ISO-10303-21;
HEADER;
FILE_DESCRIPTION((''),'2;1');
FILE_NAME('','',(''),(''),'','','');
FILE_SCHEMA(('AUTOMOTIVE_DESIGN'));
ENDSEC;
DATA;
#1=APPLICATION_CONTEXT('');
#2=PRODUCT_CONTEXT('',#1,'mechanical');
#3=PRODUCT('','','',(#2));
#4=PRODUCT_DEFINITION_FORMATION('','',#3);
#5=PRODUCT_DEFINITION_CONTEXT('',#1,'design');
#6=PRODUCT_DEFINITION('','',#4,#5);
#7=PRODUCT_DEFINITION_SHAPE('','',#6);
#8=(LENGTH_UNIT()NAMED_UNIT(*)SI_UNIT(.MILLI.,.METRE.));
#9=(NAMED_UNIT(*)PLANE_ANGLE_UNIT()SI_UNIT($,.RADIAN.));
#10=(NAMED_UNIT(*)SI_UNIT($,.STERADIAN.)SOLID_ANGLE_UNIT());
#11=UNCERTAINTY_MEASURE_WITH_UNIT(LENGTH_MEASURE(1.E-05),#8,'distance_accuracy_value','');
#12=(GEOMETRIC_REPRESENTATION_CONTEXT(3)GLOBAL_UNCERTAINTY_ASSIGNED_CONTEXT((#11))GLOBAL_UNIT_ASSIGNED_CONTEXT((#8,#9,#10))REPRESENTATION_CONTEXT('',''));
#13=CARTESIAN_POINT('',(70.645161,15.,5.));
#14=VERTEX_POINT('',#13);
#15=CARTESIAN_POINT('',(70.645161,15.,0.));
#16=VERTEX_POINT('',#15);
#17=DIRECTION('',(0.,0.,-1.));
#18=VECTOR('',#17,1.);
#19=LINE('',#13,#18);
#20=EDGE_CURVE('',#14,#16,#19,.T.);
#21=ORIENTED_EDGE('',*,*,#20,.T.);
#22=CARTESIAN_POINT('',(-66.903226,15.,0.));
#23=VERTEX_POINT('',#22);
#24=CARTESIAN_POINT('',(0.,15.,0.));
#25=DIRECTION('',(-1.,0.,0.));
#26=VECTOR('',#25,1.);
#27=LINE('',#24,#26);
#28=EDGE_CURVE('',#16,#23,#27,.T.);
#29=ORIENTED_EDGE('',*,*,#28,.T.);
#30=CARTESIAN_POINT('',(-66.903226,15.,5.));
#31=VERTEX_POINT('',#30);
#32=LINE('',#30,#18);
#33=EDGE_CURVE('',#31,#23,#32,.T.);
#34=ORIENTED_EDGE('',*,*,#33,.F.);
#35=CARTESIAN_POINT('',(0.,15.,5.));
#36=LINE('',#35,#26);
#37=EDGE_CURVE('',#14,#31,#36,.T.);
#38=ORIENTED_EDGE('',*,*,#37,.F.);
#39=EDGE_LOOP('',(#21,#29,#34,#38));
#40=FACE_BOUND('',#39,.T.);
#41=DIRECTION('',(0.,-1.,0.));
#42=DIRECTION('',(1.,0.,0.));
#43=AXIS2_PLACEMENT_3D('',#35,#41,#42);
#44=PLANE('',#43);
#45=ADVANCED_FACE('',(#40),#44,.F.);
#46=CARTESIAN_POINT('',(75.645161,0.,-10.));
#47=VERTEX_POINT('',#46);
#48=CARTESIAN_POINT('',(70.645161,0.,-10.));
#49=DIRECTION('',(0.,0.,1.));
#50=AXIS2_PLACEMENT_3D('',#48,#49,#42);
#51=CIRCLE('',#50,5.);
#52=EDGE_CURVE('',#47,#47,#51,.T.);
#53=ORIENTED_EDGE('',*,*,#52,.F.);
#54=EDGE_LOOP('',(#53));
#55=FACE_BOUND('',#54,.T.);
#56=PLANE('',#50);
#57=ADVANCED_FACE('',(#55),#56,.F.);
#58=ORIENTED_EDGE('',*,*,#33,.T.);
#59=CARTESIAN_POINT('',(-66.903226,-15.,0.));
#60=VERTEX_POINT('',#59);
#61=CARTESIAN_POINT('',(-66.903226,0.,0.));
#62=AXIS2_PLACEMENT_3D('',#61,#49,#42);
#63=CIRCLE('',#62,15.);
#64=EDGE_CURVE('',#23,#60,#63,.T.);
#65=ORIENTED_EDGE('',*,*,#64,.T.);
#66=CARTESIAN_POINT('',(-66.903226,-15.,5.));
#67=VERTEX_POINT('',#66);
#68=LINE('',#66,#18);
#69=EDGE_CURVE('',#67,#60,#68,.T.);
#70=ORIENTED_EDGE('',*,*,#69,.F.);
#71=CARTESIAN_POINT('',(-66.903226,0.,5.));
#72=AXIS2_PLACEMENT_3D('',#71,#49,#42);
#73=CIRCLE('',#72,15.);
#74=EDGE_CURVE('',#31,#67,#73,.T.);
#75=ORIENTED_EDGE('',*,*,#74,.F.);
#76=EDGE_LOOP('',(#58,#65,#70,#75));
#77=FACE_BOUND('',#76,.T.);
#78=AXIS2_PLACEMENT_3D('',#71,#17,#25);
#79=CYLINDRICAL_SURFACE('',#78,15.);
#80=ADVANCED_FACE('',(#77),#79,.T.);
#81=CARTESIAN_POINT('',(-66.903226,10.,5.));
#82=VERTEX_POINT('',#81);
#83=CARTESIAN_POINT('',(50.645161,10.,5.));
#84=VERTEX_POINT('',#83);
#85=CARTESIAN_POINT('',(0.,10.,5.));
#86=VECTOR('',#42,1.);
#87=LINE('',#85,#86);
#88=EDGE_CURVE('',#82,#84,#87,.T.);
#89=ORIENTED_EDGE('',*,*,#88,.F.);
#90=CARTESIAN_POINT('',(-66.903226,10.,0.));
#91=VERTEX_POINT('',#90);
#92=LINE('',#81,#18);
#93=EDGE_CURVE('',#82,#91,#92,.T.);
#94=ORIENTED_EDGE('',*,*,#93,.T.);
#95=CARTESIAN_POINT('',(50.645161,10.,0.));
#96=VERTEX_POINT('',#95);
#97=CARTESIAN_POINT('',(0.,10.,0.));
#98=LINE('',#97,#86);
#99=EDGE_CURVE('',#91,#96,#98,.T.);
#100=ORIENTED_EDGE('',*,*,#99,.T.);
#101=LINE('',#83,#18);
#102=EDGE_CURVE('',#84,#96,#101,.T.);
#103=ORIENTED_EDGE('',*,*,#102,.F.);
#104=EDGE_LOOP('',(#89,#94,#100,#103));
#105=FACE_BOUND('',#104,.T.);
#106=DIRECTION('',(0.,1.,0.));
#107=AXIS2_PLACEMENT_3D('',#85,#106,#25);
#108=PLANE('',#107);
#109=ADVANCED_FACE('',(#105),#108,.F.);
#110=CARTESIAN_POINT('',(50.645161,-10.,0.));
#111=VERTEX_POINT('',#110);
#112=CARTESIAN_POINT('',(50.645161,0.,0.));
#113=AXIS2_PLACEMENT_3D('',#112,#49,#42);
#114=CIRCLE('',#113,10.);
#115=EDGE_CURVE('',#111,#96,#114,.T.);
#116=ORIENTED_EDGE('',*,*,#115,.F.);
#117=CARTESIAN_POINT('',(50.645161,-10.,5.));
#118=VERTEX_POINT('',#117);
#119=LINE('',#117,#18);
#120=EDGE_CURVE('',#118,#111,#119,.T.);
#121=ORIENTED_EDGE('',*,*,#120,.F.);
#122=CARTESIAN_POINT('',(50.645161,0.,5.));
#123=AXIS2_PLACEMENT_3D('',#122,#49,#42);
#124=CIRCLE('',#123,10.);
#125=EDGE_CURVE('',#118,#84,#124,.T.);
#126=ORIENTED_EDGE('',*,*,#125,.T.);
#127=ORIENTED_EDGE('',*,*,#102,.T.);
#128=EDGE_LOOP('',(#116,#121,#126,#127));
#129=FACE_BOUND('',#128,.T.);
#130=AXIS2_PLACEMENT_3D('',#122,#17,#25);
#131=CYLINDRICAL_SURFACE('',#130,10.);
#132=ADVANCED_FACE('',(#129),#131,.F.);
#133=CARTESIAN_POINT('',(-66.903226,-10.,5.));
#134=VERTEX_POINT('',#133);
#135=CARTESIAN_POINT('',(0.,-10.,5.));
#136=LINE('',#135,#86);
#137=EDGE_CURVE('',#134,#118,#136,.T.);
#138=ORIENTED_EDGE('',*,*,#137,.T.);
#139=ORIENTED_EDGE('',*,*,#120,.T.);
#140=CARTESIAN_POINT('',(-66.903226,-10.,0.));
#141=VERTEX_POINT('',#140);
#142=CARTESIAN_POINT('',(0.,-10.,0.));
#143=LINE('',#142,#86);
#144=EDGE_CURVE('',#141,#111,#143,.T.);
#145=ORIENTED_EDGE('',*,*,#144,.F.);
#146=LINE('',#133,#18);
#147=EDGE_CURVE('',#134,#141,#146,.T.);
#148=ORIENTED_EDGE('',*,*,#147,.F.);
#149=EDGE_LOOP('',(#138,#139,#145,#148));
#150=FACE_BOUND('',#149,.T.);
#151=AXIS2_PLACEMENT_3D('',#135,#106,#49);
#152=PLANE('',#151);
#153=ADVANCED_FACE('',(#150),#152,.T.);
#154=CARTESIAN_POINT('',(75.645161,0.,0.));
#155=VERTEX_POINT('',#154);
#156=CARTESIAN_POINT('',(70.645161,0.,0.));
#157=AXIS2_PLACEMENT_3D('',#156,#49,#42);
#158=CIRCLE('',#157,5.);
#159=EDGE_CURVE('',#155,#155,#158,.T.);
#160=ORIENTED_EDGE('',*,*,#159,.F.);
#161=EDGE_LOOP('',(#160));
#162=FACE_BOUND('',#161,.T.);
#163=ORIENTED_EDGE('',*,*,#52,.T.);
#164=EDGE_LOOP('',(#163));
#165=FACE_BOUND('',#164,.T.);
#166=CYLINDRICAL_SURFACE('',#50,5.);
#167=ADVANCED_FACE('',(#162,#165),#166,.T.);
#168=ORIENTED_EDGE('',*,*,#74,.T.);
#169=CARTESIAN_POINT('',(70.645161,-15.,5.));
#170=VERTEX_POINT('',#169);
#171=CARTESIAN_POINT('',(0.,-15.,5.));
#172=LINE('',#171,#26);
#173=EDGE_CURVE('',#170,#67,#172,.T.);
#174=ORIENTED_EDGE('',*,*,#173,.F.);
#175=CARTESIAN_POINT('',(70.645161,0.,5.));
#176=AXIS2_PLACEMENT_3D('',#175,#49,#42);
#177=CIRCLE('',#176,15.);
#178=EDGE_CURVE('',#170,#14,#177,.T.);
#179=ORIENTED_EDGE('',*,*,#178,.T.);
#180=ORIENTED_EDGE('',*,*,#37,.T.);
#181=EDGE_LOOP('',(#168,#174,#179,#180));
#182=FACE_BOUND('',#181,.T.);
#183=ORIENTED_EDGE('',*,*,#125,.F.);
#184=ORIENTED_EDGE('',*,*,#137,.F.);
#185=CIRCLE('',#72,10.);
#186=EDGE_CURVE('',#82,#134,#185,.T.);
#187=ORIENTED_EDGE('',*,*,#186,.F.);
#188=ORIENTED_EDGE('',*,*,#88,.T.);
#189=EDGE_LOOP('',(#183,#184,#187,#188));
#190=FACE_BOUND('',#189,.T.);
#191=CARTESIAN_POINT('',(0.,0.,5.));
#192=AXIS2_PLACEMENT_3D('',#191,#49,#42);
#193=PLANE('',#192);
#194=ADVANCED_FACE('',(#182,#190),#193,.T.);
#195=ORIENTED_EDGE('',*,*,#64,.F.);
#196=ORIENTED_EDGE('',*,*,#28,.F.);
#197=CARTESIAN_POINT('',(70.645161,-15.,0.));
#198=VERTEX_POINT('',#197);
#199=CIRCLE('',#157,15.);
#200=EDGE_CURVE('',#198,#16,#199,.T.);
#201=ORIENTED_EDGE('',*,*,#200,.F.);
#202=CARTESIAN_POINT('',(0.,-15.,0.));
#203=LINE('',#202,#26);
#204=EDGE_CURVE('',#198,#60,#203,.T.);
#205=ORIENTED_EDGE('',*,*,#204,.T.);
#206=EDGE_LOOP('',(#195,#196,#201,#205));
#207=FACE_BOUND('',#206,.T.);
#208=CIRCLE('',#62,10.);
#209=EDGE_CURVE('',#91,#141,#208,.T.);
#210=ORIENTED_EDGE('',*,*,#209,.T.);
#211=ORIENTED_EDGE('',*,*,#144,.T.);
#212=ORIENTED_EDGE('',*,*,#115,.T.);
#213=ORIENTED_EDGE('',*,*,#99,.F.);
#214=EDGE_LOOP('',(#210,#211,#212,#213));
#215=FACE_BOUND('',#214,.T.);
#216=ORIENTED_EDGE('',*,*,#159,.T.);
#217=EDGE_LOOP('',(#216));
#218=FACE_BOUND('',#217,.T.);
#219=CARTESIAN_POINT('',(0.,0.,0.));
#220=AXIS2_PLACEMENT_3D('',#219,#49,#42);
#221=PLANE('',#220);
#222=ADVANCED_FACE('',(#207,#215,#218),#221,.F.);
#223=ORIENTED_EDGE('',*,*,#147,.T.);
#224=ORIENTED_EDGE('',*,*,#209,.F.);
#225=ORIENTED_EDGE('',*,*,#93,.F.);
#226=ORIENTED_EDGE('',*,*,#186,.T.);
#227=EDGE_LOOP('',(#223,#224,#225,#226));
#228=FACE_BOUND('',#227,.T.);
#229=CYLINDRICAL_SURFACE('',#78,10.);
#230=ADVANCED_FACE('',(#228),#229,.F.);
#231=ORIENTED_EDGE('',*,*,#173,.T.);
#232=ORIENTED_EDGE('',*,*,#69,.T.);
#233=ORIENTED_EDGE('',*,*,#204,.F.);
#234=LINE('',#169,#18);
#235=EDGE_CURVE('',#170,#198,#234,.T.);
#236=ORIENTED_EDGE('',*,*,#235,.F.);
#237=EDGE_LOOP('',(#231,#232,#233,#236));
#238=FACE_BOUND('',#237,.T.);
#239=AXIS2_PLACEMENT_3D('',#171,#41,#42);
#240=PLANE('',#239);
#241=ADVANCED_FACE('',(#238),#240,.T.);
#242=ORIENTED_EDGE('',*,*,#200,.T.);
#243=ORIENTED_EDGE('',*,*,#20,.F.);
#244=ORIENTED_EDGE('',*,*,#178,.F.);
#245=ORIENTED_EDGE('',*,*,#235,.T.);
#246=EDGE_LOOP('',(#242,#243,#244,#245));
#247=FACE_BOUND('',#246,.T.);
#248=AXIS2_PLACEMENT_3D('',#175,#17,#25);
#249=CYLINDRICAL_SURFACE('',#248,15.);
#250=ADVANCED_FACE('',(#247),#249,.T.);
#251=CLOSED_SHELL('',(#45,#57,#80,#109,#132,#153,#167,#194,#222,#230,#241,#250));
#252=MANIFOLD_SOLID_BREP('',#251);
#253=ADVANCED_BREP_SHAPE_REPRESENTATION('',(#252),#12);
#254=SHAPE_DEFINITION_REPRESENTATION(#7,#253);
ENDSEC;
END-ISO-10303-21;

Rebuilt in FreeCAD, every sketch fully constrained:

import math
import FreeCAD as App
import Part
import Sketcher

doc = App.newDocument("Part")
body = doc.addObject("PartDesign::Body", "Body")

sketch1 = body.newObject("Sketcher::SketchObject", "Sketch")
sketch1.AttachmentSupport = (doc.getObject("XY_Plane"), [""])
sketch1.MapMode = "FlatFace"
sketch1.addGeometry([
    Part.LineSegment(App.Vector(-67, -15, 0), App.Vector(71, -15, 0)),
    Part.ArcOfCircle(Part.Circle(App.Vector(71, 0, 0), App.Vector(0, 0, 1), 15), math.radians(-90), math.radians(90)),
    Part.LineSegment(App.Vector(71, 15, 0), App.Vector(-67, 15, 0)),
    Part.ArcOfCircle(Part.Circle(App.Vector(-67, 0, 0), App.Vector(0, 0, 1), 15), math.radians(90), math.radians(270)),
    Part.ArcOfCircle(Part.Circle(App.Vector(-67, 0, 0), App.Vector(0, 0, 1), 10), math.radians(90), math.radians(270)),
    Part.LineSegment(App.Vector(-67, 10, 0), App.Vector(51, 10, 0)),
    Part.ArcOfCircle(Part.Circle(App.Vector(51, 0, 0), App.Vector(0, 0, 1), 10), math.radians(-90), math.radians(90)),
    Part.LineSegment(App.Vector(51, -10, 0), App.Vector(-67, -10, 0)),
], False)
sketch1.addConstraint([
    Sketcher.Constraint("Tangent", 0, 2, 1, 1),
    Sketcher.Constraint("Tangent", 1, 2, 2, 1),
    Sketcher.Constraint("Tangent", 2, 2, 3, 1),
    Sketcher.Constraint("Tangent", 3, 2, 0, 1),
    Sketcher.Constraint("Tangent", 4, 1, 5, 1),
    Sketcher.Constraint("Tangent", 5, 2, 6, 2),
    Sketcher.Constraint("Tangent", 6, 1, 7, 1),
    Sketcher.Constraint("Tangent", 7, 2, 4, 2),
    Sketcher.Constraint("Horizontal", 0),
    Sketcher.Constraint("Horizontal", 2),
    Sketcher.Constraint("Horizontal", 5),
    Sketcher.Constraint("Horizontal", 7),
    Sketcher.Constraint("Coincident", 4, 3, 3, 3),
    Sketcher.Constraint("PointOnObject", 1, 3, -1),
    Sketcher.Constraint("Radius", 1, 15.0),
    Sketcher.Constraint("Radius", 4, 10.0),
    Sketcher.Constraint("DistanceX", 6, 3, 1, 3, 20.0),
    Sketcher.Constraint("DistanceX", 0, 1, 0, 2, 137.548387),
    Sketcher.Constraint("DistanceX", -1, 1, 1, 3, 70.645161),
])
pad1 = body.newObject("PartDesign::Pad", "Pad")
pad1.Profile = sketch1
pad1.Length = 5

sketch2 = body.newObject("Sketcher::SketchObject", "Sketch001")
sketch2.AttachmentSupport = (doc.getObject("XY_Plane"), [""])
sketch2.MapMode = "FlatFace"
sketch2.addGeometry(Part.Circle(App.Vector(71, 0, 0), App.Vector(0, 0, 1), 5), False)
sketch2.addConstraint([
    Sketcher.Constraint("PointOnObject", 0, 3, -1),
    Sketcher.Constraint("Diameter", 0, 10.0),
    Sketcher.Constraint("DistanceX", -1, 1, 0, 3, 70.645161),
])
pad2 = body.newObject("PartDesign::Pad", "Pad001")
pad2.Profile = sketch2
pad2.Length = 10
pad2.Reversed = True

doc.recompute()
